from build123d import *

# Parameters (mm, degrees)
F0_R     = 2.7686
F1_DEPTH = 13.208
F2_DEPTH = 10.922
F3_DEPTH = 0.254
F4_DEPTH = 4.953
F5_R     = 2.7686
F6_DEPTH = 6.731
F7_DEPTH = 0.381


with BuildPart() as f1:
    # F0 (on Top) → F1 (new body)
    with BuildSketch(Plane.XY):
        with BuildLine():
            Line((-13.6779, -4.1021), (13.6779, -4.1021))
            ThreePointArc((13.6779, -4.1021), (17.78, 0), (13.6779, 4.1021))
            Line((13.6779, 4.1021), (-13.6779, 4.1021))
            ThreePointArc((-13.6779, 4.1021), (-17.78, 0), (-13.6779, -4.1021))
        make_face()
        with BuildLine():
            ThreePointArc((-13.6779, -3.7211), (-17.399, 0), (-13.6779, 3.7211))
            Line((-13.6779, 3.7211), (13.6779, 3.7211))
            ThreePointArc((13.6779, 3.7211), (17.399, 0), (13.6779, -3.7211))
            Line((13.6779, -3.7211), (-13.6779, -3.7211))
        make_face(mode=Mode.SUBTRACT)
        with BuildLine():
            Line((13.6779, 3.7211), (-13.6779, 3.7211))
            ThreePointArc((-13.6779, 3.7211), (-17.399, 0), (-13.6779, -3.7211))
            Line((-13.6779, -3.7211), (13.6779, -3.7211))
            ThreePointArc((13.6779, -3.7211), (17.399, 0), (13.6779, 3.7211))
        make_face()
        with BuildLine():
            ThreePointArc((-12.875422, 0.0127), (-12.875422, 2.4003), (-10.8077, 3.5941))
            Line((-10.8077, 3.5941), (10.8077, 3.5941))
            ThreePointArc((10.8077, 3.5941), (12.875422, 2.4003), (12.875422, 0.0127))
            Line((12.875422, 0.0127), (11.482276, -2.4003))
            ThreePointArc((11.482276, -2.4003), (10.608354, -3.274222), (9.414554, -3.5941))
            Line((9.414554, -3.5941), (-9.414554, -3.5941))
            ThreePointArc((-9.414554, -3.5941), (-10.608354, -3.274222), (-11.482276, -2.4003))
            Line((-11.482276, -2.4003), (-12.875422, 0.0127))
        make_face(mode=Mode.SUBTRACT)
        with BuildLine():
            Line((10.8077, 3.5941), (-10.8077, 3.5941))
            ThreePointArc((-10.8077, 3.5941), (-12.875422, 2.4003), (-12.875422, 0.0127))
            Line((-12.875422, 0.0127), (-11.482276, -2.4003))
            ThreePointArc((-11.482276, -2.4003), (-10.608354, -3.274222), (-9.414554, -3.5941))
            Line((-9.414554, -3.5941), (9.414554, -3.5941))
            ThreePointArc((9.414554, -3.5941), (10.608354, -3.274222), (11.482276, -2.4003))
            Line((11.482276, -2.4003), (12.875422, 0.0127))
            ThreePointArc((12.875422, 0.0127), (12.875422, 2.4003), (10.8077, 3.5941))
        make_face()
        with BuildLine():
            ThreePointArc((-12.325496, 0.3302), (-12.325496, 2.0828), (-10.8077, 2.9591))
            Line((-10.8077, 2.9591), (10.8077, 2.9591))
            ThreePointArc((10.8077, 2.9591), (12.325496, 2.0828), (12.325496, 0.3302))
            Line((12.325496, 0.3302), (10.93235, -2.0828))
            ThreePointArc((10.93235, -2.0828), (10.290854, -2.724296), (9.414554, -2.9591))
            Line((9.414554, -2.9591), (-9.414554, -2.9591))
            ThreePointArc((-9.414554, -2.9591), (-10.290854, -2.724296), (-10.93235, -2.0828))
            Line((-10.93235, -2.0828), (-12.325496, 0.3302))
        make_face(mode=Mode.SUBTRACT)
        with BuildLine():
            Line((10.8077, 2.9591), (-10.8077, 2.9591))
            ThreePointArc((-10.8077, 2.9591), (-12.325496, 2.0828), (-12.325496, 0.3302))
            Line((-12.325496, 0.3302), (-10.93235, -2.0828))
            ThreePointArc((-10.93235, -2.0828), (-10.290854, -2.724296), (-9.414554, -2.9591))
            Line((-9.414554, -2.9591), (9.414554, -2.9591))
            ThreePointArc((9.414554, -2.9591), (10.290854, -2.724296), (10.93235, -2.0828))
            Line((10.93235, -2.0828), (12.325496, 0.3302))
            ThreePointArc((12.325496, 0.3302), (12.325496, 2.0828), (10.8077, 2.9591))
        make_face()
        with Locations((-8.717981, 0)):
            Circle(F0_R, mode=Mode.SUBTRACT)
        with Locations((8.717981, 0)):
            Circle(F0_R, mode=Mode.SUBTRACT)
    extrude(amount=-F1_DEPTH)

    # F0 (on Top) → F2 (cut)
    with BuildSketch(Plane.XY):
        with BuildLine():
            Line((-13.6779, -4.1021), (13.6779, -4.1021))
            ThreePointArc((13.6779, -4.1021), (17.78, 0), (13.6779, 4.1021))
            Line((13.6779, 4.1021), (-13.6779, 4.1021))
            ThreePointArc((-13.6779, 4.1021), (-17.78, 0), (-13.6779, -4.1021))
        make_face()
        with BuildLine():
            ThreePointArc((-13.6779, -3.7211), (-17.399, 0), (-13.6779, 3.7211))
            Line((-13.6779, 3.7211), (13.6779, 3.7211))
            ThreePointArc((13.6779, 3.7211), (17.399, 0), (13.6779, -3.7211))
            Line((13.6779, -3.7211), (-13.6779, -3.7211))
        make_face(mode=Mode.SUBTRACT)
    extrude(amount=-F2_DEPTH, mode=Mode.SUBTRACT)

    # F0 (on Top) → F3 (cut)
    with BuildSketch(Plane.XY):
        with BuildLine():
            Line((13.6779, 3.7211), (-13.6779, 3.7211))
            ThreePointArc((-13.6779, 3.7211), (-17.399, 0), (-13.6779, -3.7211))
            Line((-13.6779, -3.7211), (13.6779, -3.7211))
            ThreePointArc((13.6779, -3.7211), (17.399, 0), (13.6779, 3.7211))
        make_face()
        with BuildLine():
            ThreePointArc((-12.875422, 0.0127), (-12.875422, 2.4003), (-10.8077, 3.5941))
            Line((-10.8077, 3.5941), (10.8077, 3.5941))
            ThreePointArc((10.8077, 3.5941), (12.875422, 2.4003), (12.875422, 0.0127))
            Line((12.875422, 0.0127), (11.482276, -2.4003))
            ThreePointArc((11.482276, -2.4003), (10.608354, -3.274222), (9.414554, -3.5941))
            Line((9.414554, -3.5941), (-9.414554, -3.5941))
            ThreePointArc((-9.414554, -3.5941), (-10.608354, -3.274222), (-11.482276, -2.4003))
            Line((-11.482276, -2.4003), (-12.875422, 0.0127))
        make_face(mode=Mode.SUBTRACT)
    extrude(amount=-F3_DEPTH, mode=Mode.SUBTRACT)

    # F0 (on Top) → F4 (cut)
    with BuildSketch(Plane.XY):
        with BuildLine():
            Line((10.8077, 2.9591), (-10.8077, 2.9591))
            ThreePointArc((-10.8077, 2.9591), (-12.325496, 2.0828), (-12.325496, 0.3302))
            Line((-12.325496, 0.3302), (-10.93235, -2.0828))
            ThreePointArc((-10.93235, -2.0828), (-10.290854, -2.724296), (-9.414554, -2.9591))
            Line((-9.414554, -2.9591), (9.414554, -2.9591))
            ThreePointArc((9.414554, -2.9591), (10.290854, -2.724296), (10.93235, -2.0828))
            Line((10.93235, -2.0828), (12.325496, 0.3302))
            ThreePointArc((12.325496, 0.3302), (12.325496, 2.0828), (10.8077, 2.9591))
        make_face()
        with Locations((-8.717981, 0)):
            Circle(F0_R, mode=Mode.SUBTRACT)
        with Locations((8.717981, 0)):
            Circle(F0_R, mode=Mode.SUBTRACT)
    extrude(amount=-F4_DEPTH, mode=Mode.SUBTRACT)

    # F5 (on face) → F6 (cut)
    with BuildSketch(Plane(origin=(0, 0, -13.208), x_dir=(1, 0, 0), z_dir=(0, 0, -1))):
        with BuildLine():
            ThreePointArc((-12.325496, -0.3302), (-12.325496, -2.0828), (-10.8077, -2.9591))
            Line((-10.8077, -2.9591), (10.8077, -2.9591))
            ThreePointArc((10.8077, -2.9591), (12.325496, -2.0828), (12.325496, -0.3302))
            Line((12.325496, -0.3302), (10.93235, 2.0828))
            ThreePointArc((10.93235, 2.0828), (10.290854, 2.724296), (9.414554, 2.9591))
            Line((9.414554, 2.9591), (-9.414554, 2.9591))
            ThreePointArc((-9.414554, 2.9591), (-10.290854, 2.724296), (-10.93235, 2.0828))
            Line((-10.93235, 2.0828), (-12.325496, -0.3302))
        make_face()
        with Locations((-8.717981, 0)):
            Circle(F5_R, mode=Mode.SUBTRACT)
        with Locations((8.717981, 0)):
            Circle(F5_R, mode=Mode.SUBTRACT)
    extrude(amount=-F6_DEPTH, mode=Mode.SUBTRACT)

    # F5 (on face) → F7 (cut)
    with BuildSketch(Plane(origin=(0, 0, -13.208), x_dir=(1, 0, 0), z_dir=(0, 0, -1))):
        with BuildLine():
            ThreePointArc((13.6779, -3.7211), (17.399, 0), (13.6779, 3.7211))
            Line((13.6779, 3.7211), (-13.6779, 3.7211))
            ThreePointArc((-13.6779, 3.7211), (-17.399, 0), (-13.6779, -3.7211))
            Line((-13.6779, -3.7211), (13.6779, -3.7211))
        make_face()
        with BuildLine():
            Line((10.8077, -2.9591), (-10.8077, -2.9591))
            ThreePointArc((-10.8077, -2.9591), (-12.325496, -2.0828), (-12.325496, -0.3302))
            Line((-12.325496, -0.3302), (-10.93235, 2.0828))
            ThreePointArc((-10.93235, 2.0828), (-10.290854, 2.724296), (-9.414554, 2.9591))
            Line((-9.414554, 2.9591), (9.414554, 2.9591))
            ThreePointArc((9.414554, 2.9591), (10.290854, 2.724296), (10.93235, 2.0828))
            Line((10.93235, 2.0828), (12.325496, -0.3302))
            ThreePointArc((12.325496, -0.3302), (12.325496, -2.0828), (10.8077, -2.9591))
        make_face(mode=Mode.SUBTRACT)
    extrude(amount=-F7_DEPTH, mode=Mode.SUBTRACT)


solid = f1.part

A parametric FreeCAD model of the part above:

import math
import FreeCAD as App
import Part
import Sketcher
Q = App.Units.Quantity

doc = App.newDocument("Part")
body = doc.addObject("PartDesign::Body", "Body")

# Sketch on XY plane
sketch1 = doc.addObject("Sketcher::SketchObject", "Sketch")
body.addObject(sketch1)
sketch1.AttachmentSupport = (doc.XY_Plane, [""])
sketch1.MapMode = "FlatFace"
sketch1.addGeometry([
    Part.LineSegment(App.Vector(-13.7, -4.1, 0), App.Vector(13.7, -4.1, 0)),  # 0
    Part.ArcOfCircle(Part.Circle(App.Vector(13.7, 0, 0), App.Vector(0, 0, 1), 4.1), math.radians(-90), math.radians(90)),  # 1
    Part.LineSegment(App.Vector(13.7, 4.1, 0), App.Vector(-13.7, 4.1, 0)),  # 2
    Part.ArcOfCircle(Part.Circle(App.Vector(-13.7, 0, 0), App.Vector(0, 0, 1), 4.1), math.radians(90), math.radians(270)),  # 3
    Part.Circle(App.Vector(-8.7, 0, 0), App.Vector(0, 0, 1), 2.8),  # 4
    Part.Circle(App.Vector(8.7, 0, 0), App.Vector(0, 0, 1), 2.8),  # 5
], False)
sketch1.addConstraint([
    Sketcher.Constraint("Tangent", 0, 2, 1, 1),
    Sketcher.Constraint("Tangent", 1, 2, 2, 1),
    Sketcher.Constraint("Tangent", 2, 2, 3, 1),
    Sketcher.Constraint("Tangent", 3, 2, 0, 1),
    Sketcher.Constraint("Horizontal", 0),
    Sketcher.Constraint("Horizontal", 2),
    Sketcher.Constraint("Equal", 4, 5),
    Sketcher.Constraint("Symmetric", 1, 3, 3, 3, -1, 1),
    Sketcher.Constraint("Symmetric", 4, 3, 5, 3, -1, 1),
    Sketcher.Constraint("PointOnObject", 4, 3, -1),
    Sketcher.Constraint("Diameter", 4, Q("0.218 in")),
    Sketcher.Constraint("Radius", 1, Q("0.1615 in")),
    Sketcher.Constraint("DistanceX", 0, 1, 0, 2, Q("1.077 in")),
    Sketcher.Constraint("DistanceX", 4, 3, -1, 1, Q("8.717981 mm")),
])
pad1 = doc.addObject("PartDesign::Pad", "Pad")
body.addObject(pad1)
pad1.Profile = sketch1
pad1.Length = Q("0.52 in")
pad1.Reversed = True

# Sketch on XY plane
sketch2 = doc.addObject("Sketcher::SketchObject", "Sketch001")
body.addObject(sketch2)
sketch2.AttachmentSupport = (doc.XY_Plane, [""])
sketch2.MapMode = "FlatFace"
sketch2.addGeometry([
    Part.LineSegment(App.Vector(-13.7, -4.1, 0), App.Vector(13.7, -4.1, 0)),  # 0
    Part.ArcOfCircle(Part.Circle(App.Vector(13.7, 0, 0), App.Vector(0, 0, 1), 4.1), math.radians(-90), math.radians(90)),  # 1
    Part.LineSegment(App.Vector(13.7, 4.1, 0), App.Vector(-13.7, 4.1, 0)),  # 2
    Part.ArcOfCircle(Part.Circle(App.Vector(-13.7, 0, 0), App.Vector(0, 0, 1), 4.1), math.radians(90), math.radians(270)),  # 3
    Part.LineSegment(App.Vector(13.7, -3.7, 0), App.Vector(-13.7, -3.7, 0)),  # 4
    Part.ArcOfCircle(Part.Circle(App.Vector(-13.7, 0, 0), App.Vector(0, 0, 1), 3.7), math.radians(90), math.radians(270)),  # 5
    Part.LineSegment(App.Vector(-13.7, 3.7, 0), App.Vector(13.7, 3.7, 0)),  # 6
    Part.ArcOfCircle(Part.Circle(App.Vector(13.7, 0, 0), App.Vector(0, 0, 1), 3.7), math.radians(-90), math.radians(90)),  # 7
], False)
sketch2.addConstraint([
    Sketcher.Constraint("Tangent", 0, 2, 1, 1),
    Sketcher.Constraint("Tangent", 1, 2, 2, 1),
    Sketcher.Constraint("Tangent", 2, 2, 3, 1),
    Sketcher.Constraint("Tangent", 3, 2, 0, 1),
    Sketcher.Constraint("Tangent", 4, 2, 5, 2),
    Sketcher.Constraint("Tangent", 5, 1, 6, 1),
    Sketcher.Constraint("Tangent", 6, 2, 7, 2),
    Sketcher.Constraint("Tangent", 7, 1, 4, 1),
    Sketcher.Constraint("Horizontal", 0),
    Sketcher.Constraint("Horizontal", 2),
    Sketcher.Constraint("Horizontal", 4),
    Sketcher.Constraint("Horizontal", 6),
    Sketcher.Constraint("Coincident", 5, 3, 3, 3),
    Sketcher.Constraint("Symmetric", 1, 3, 3, 3, -1, 1),
    Sketcher.Constraint("Vertical", 7, 3, 0, 2),
    Sketcher.Constraint("Radius", 1, Q("0.1615 in")),
    Sketcher.Constraint("Radius", 5, Q("0.1465 in")),
    Sketcher.Constraint("DistanceX", 0, 1, 0, 2, Q("1.077 in")),
])
pocket1 = doc.addObject("PartDesign::Pocket", "Pocket")
body.addObject(pocket1)
pocket1.Profile = sketch2
pocket1.Length = Q("0.43 in")

# Sketch on XY plane
sketch3 = doc.addObject("Sketcher::SketchObject", "Sketch002")
body.addObject(sketch3)
sketch3.AttachmentSupport = (doc.XY_Plane, [""])
sketch3.MapMode = "FlatFace"
sketch3.addGeometry([
    Part.LineSegment(App.Vector(13.7, 3.7, 0), App.Vector(-13.7, 3.7, 0)),  # 0
    Part.ArcOfCircle(Part.Circle(App.Vector(-13.7, 0, 0), App.Vector(0, 0, 1), 3.7), math.radians(90), math.radians(270)),  # 1
    Part.LineSegment(App.Vector(-13.7, -3.7, 0), App.Vector(13.7, -3.7, 0)),  # 2
    Part.ArcOfCircle(Part.Circle(App.Vector(13.7, 0, 0), App.Vector(0, 0, 1), 3.7), math.radians(-90), math.radians(90)),  # 3
    Part.LineSegment(App.Vector(-11.5, -2.4, 0), App.Vector(-12.9, 0, 0)),  # 4
    Part.ArcOfCircle(Part.Circle(App.Vector(-10.8, 1.2, 0), App.Vector(0, 0, 1), 2.4), math.radians(90), math.radians(210)),  # 5
    Part.LineSegment(App.Vector(-10.8, 3.6, 0), App.Vector(10.8, 3.6, 0)),  # 6
    Part.ArcOfCircle(Part.Circle(App.Vector(10.8, 1.2, 0), App.Vector(0, 0, 1), 2.4), math.radians(-30), math.radians(90)),  # 7
    Part.LineSegment(App.Vector(12.9, 0, 0), App.Vector(11.5, -2.4, 0)),  # 8
    Part.ArcOfCircle(Part.Circle(App.Vector(9.4, -1.2, 0), App.Vector(0, 0, 1), 2.4), math.radians(-90), math.radians(-30)),  # 9
    Part.LineSegment(App.Vector(9.4, -3.6, 0), App.Vector(-9.4, -3.6, 0)),  # 10
    Part.ArcOfCircle(Part.Circle(App.Vector(-9.4, -1.2, 0), App.Vector(0, 0, 1), 2.4), math.radians(-150), math.radians(-90)),  # 11
], False)
sketch3.addConstraint([
    Sketcher.Constraint("Tangent", 0, 2, 1, 1),
    Sketcher.Constraint("Tangent", 1, 2, 2, 1),
    Sketcher.Constraint("Tangent", 2, 2, 3, 1),
    Sketcher.Constraint("Tangent", 3, 2, 0, 1),
    Sketcher.Constraint("Tangent", 4, 2, 5, 2),
    Sketcher.Constraint("Tangent", 5, 1, 6, 1),
    Sketcher.Constraint("Tangent", 6, 2, 7, 2),
    Sketcher.Constraint("Tangent", 7, 1, 8, 1),
    Sketcher.Constraint("Tangent", 8, 2, 9, 2),
    Sketcher.Constraint("Tangent", 9, 1, 10, 1),
    Sketcher.Constraint("Tangent", 10, 2, 11, 2),
    Sketcher.Constraint("Tangent", 11, 1, 4, 1),
    Sketcher.Constraint("Horizontal", 0),
    Sketcher.Constraint("Horizontal", 2),
    Sketcher.Constraint("Horizontal", 6),
    Sketcher.Constraint("Horizontal", 10),
    Sketcher.Constraint("Equal", 5, 7),
    Sketcher.Constraint("Equal", 7, 9),
    Sketcher.Constraint("Equal", 9, 11),
    Sketcher.Constraint("Symmetric", 1, 3, 3, 3, -1, 1),
    Sketcher.Constraint("Symmetric", 4, 2, 7, 1, -2),
    Sketcher.Constraint("Angle", 4, Q("119.999996 deg")),
    Sketcher.Constraint("Radius", 5, Q("0.094 in")),
    Sketcher.Constraint("Radius", 1, Q("0.1465 in")),
    Sketcher.Constraint("DistanceX", 0, 2, 0, 1, Q("1.077 in")),
    Sketcher.Constraint("DistanceX", 6, 1, 6, 2, Q("0.851 in")),
    Sketcher.Constraint("DistanceY", 9, 3, 7, 3, Q("0.095 in")),
    Sketcher.Constraint("DistanceY", 5, 3, 0, 2, Q("0.099 in")),
])
pocket2 = doc.addObject("PartDesign::Pocket", "Pocket001")
body.addObject(pocket2)
pocket2.Profile = sketch3
pocket2.Length = Q("0.01 in")

# Sketch on XY plane
sketch4 = doc.addObject("Sketcher::SketchObject", "Sketch003")
body.addObject(sketch4)
sketch4.AttachmentSupport = (doc.XY_Plane, [""])
sketch4.MapMode = "FlatFace"
sketch4.addGeometry([
    Part.LineSegment(App.Vector(10.8, 3, 0), App.Vector(-10.8, 3, 0)),  # 0
    Part.ArcOfCircle(Part.Circle(App.Vector(-10.8, 1.2, 0), App.Vector(0, 0, 1), 1.8), math.radians(90), math.radians(210)),  # 1
    Part.LineSegment(App.Vector(-12.3, 0.3, 0), App.Vector(-10.9, -2.1, 0)),  # 2
    Part.ArcOfCircle(Part.Circle(App.Vector(-9.4, -1.2, 0), App.Vector(0, 0, 1), 1.8), math.radians(-150), math.radians(-90)),  # 3
    Part.LineSegment(App.Vector(-9.4, -3, 0), App.Vector(9.4, -3, 0)),  # 4
    Part.ArcOfCircle(Part.Circle(App.Vector(9.4, -1.2, 0), App.Vector(0, 0, 1), 1.8), math.radians(-90), math.radians(-30)),  # 5
    Part.LineSegment(App.Vector(10.9, -2.1, 0), App.Vector(12.3, 0.3, 0)),  # 6
    Part.ArcOfCircle(Part.Circle(App.Vector(10.8, 1.2, 0), App.Vector(0, 0, 1), 1.8), math.radians(-30), math.radians(90)),  # 7
    Part.Circle(App.Vector(-8.7, 0, 0), App.Vector(0, 0, 1), 2.8),  # 8
    Part.Circle(App.Vector(8.7, 0, 0), App.Vector(0, 0, 1), 2.8),  # 9
], False)
sketch4.addConstraint([
    Sketcher.Constraint("Tangent", 0, 2, 1, 1),
    Sketcher.Constraint("Tangent", 1, 2, 2, 1),
    Sketcher.Constraint("Tangent", 2, 2, 3, 1),
    Sketcher.Constraint("Tangent", 3, 2, 4, 1),
    Sketcher.Constraint("Tangent", 4, 2, 5, 1),
    Sketcher.Constraint("Tangent", 5, 2, 6, 1),
    Sketcher.Constraint("Tangent", 6, 2, 7, 1),
    Sketcher.Constraint("Tangent", 7, 2, 0, 1),
    Sketcher.Constraint("Horizontal", 0),
    Sketcher.Constraint("Horizontal", 4),
    Sketcher.Constraint("Equal", 1, 3),
    Sketcher.Constraint("Equal", 3, 5),
    Sketcher.Constraint("Equal", 5, 7),
    Sketcher.Constraint("Equal", 8, 9),
    Sketcher.Constraint("Symmetric", 8, 3, 9, 3, -1, 1),
    Sketcher.Constraint("Symmetric", 2, 2, 5, 2, -2),
    Sketcher.Constraint("PointOnObject", 8, 3, -1),
    Sketcher.Constraint("Diameter", 8, Q("0.218 in")),
    Sketcher.Constraint("Angle", 2, Q("-60.000004 deg")),
    Sketcher.Constraint("Radius", 1, Q("0.069 in")),
    Sketcher.Constraint("DistanceX", 0, 2, 0, 1, Q("0.851 in")),
    Sketcher.Constraint("DistanceY", -1, 1, 1, 2, Q("0.013 in")),
    Sketcher.Constraint("DistanceY", 2, 2, -1, 1, Q("0.082 in")),
    Sketcher.Constraint("DistanceX", 8, 3, -1, 1, Q("8.717981 mm")),
])
pocket3 = doc.addObject("PartDesign::Pocket", "Pocket002")
body.addObject(pocket3)
pocket3.Profile = sketch4
pocket3.Length = Q("0.195 in")

# Sketch on XY plane
sketch5 = doc.addObject("Sketcher::SketchObject", "Sketch004")
body.addObject(sketch5)
sketch5.AttachmentSupport = (doc.XY_Plane, [""])
sketch5.MapMode = "FlatFace"
sketch5.AttachmentOffset = App.Placement(App.Vector(0, 0, -0.52 * 25.4), App.Rotation())
sketch5.addGeometry([
    Part.ArcOfCircle(Part.Circle(App.Vector(-10.8, 1.2, 0), App.Vector(0, 0, 1), 1.8), math.radians(90), math.radians(210)),  # 0
    Part.LineSegment(App.Vector(-10.8, 3, 0), App.Vector(10.8, 3, 0)),  # 1
    Part.ArcOfCircle(Part.Circle(App.Vector(10.8, 1.2, 0), App.Vector(0, 0, 1), 1.8), math.radians(-30), math.radians(90)),  # 2
    Part.LineSegment(App.Vector(12.3, 0.3, 0), App.Vector(10.9, -2.1, 0)),  # 3
    Part.ArcOfCircle(Part.Circle(App.Vector(9.4, -1.2, 0), App.Vector(0, 0, 1), 1.8), math.radians(-90), math.radians(-30)),  # 4
    Part.LineSegment(App.Vector(9.4, -3, 0), App.Vector(-9.4, -3, 0)),  # 5
    Part.ArcOfCircle(Part.Circle(App.Vector(-9.4, -1.2, 0), App.Vector(0, 0, 1), 1.8), math.radians(-150), math.radians(-90)),  # 6
    Part.LineSegment(App.Vector(-10.9, -2.1, 0), App.Vector(-12.3, 0.3, 0)),  # 7
    Part.Circle(App.Vector(-8.7, 0, 0), App.Vector(0, 0, 1), 2.8),  # 8
    Part.Circle(App.Vector(8.7, 0, 0), App.Vector(0, 0, 1), 2.8),  # 9
], False)
sketch5.addConstraint([
    Sketcher.Constraint("Tangent", 0, 1, 1, 1),
    Sketcher.Constraint("Tangent", 1, 2, 2, 2),
    Sketcher.Constraint("Tangent", 2, 1, 3, 1),
    Sketcher.Constraint("Tangent", 3, 2, 4, 2),
    Sketcher.Constraint("Tangent", 4, 1, 5, 1),
    Sketcher.Constraint("Tangent", 5, 2, 6, 2),
    Sketcher.Constraint("Tangent", 6, 1, 7, 1),
    Sketcher.Constraint("Tangent", 7, 2, 0, 2),
    Sketcher.Constraint("Horizontal", 1),
    Sketcher.Constraint("Horizontal", 5),
    Sketcher.Constraint("Equal", 0, 2),
    Sketcher.Constraint("Equal", 2, 4),
    Sketcher.Constraint("Equal", 4, 6),
    Sketcher.Constraint("Equal", 8, 9),
    Sketcher.Constraint("Symmetric", 8, 3, 9, 3, -1, 1),
    Sketcher.Constraint("Symmetric", 3, 2, 6, 1, -2),
    Sketcher.Constraint("PointOnObject", 8, 3, -1),
    Sketcher.Constraint("Diameter", 8, Q("0.218 in")),
    Sketcher.Constraint("Angle", 3, Q("-119.999996 deg")),
    Sketcher.Constraint("Radius", 0, Q("0.069 in")),
    Sketcher.Constraint("DistanceX", 1, 1, 1, 2, Q("0.851 in")),
    Sketcher.Constraint("DistanceY", -1, 1, 2, 1, Q("0.013 in")),
    Sketcher.Constraint("DistanceY", 3, 2, -1, 1, Q("0.082 in")),
    Sketcher.Constraint("DistanceX", 8, 3, -1, 1, Q("8.717981 mm")),
])
pocket4 = doc.addObject("PartDesign::Pocket", "Pocket003")
body.addObject(pocket4)
pocket4.Profile = sketch5
pocket4.Length = Q("0.265 in")
pocket4.Reversed = True

# Sketch on XY plane
sketch6 = doc.addObject("Sketcher::SketchObject", "Sketch005")
body.addObject(sketch6)
sketch6.AttachmentSupport = (doc.XY_Plane, [""])
sketch6.MapMode = "FlatFace"
sketch6.AttachmentOffset = App.Placement(App.Vector(0, 0, -0.52 * 25.4), App.Rotation())
sketch6.addGeometry([
    Part.ArcOfCircle(Part.Circle(App.Vector(13.7, 0, 0), App.Vector(0, 0, 1), 3.7), math.radians(-90), math.radians(90)),  # 0
    Part.LineSegment(App.Vector(13.7, -3.7, 0), App.Vector(-13.7, -3.7, 0)),  # 1
    Part.ArcOfCircle(Part.Circle(App.Vector(-13.7, 0, 0), App.Vector(0, 0, 1), 3.7), math.radians(90), math.radians(270)),  # 2
    Part.LineSegment(App.Vector(-13.7, 3.7, 0), App.Vector(13.7, 3.7, 0)),  # 3
    Part.ArcOfCircle(Part.Circle(App.Vector(10.8, 1.2, 0), App.Vector(0, 0, 1), 1.8), math.radians(-30), math.radians(90)),  # 4
    Part.LineSegment(App.Vector(10.8, 3, 0), App.Vector(-10.8, 3, 0)),  # 5
    Part.ArcOfCircle(Part.Circle(App.Vector(-10.8, 1.2, 0), App.Vector(0, 0, 1), 1.8), math.radians(90), math.radians(210)),  # 6
    Part.LineSegment(App.Vector(-12.3, 0.3, 0), App.Vector(-10.9, -2.1, 0)),  # 7
    Part.ArcOfCircle(Part.Circle(App.Vector(-9.4, -1.2, 0), App.Vector(0, 0, 1), 1.8), math.radians(-150), math.radians(-90)),  # 8
    Part.LineSegment(App.Vector(-9.4, -3, 0), App.Vector(9.4, -3, 0)),  # 9
    Part.ArcOfCircle(Part.Circle(App.Vector(9.4, -1.2, 0), App.Vector(0, 0, 1), 1.8), math.radians(-90), math.radians(-30)),  # 10
    Part.LineSegment(App.Vector(10.9, -2.1, 0), App.Vector(12.3, 0.3, 0)),  # 11
], False)
sketch6.addConstraint([
    Sketcher.Constraint("Tangent", 0, 1, 1, 1),
    Sketcher.Constraint("Tangent", 1, 2, 2, 2),
    Sketcher.Constraint("Tangent", 2, 1, 3, 1),
    Sketcher.Constraint("Tangent", 3, 2, 0, 2),
    Sketcher.Constraint("Tangent", 4, 2, 5, 1),
    Sketcher.Constraint("Tangent", 5, 2, 6, 1),
    Sketcher.Constraint("Tangent", 6, 2, 7, 1),
    Sketcher.Constraint("Tangent", 7, 2, 8, 1),
    Sketcher.Constraint("Tangent", 8, 2, 9, 1),
    Sketcher.Constraint("Tangent", 9, 2, 10, 1),
    Sketcher.Constraint("Tangent", 10, 2, 11, 1),
    Sketcher.Constraint("Tangent", 11, 2, 4, 1),
    Sketcher.Constraint("Horizontal", 1),
    Sketcher.Constraint("Horizontal", 3),
    Sketcher.Constraint("Horizontal", 5),
    Sketcher.Constraint("Horizontal", 9),
    Sketcher.Constraint("Equal", 4, 6),
    Sketcher.Constraint("Equal", 6, 8),
    Sketcher.Constraint("Equal", 8, 10),
    Sketcher.Constraint("Symmetric", 0, 3, 2, 3, -1, 1),
    Sketcher.Constraint("Symmetric", 7, 2, 10, 2, -2),
    Sketcher.Constraint("Angle", 7, Q("-60.000004 deg")),
    Sketcher.Constraint("Radius", 4, Q("0.069 in")),
    Sketcher.Constraint("Radius", 0, Q("0.1465 in")),
    Sketcher.Constraint("DistanceX", 1, 2, 1, 1, Q("1.077 in")),
    Sketcher.Constraint("DistanceX", 5, 2, 5, 1, Q("0.851 in")),
    Sketcher.Constraint("DistanceY", 4, 2, 3, 2, Q("0.03 in")),
    Sketcher.Constraint("DistanceY", 1, 2, 8, 2, Q("0.03 in")),
])
pocket5 = doc.addObject("PartDesign::Pocket", "Pocket004")
body.addObject(pocket5)
pocket5.Profile = sketch6
pocket5.Length = Q("0.015 in")
pocket5.Reversed = True

doc.recompute()
